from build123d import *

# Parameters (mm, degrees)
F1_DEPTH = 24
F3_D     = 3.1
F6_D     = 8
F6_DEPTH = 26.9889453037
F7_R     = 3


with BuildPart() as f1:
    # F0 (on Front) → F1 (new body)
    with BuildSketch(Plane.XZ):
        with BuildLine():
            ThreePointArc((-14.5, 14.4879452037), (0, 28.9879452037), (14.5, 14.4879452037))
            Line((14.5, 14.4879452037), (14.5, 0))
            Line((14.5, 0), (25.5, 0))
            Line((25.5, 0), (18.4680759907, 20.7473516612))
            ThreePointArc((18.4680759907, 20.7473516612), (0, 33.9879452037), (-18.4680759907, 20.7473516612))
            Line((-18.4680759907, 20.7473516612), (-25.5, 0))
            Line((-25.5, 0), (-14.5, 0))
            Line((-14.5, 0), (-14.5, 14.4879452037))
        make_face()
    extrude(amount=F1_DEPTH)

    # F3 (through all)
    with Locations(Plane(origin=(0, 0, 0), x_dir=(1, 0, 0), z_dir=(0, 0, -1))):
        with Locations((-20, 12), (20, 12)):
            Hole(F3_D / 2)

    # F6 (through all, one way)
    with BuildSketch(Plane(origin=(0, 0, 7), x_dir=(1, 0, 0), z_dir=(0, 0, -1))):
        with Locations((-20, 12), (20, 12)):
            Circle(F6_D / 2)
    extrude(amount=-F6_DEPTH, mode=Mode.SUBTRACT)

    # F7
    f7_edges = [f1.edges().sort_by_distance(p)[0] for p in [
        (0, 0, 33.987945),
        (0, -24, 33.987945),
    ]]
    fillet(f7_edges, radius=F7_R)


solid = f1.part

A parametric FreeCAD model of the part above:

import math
import FreeCAD as App
import Part
import Sketcher

V = App.Vector


def edges_at(feature, points):
    """Names of the edges that pass closest to the given points."""
    edges = feature.Shape.Edges
    near = lambda p: min(range(len(edges)), key=lambda i: edges[i].distToShape(Part.Vertex(*p))[0])
    return sorted({f"Edge{near(p) + 1}" for p in points})

doc = App.newDocument("Part")
body = doc.addObject("PartDesign::Body", "Body")

sketch1 = doc.addObject("Sketcher::SketchObject", "Sketch")
body.addObject(sketch1)
sketch1.AttachmentSupport = (doc.XZ_Plane, [""])
sketch1.MapMode = "FlatFace"
sketch1.addGeometry([
    Part.ArcOfCircle(Part.Circle(V(0, 14, 0), V(0, 0, 1), 14), math.radians(0), math.radians(180)),
    Part.LineSegment(V(14, 14, 0), V(14, 0, 0)),
    Part.LineSegment(V(14, 0, 0), V(26, 0, 0)),
    Part.LineSegment(V(26, 0, 0), V(18, 21, 0)),
    Part.ArcOfCircle(Part.Circle(V(0, 14, 0), V(0, 0, 1), 20), math.radians(19), math.radians(161)),
    Part.LineSegment(V(-18, 21, 0), V(-26, 0, 0)),
    Part.LineSegment(V(-26, 0, 0), V(-14, 0, 0)),
    Part.LineSegment(V(-14, 0, 0), V(-14, 14, 0)),
], False)
sketch1.addConstraint([
    Sketcher.Constraint("Tangent", 0, 1, 1, 1),
    Sketcher.Constraint("Coincident", 1, 2, 2, 1),
    Sketcher.Constraint("Coincident", 2, 2, 3, 1),
    Sketcher.Constraint("Tangent", 3, 2, 4, 1),
    Sketcher.Constraint("Tangent", 4, 2, 5, 1),
    Sketcher.Constraint("Coincident", 5, 2, 6, 1),
    Sketcher.Constraint("Coincident", 6, 2, 7, 1),
    Sketcher.Constraint("Tangent", 7, 2, 0, 2),
    Sketcher.Constraint("Vertical", 1),
    Sketcher.Constraint("Horizontal", 2),
    Sketcher.Constraint("Horizontal", 6),
    Sketcher.Constraint("Vertical", 7),
    Sketcher.Constraint("Coincident", 4, 3, 0, 3),
    Sketcher.Constraint("Symmetric", 2, 2, 5, 2, -1, 1),
    Sketcher.Constraint("Symmetric", 3, 2, 4, 2, -2),
    Sketcher.Constraint("Radius", 0, 14.5),
    Sketcher.Constraint("Radius", 4, 19.5),
    Sketcher.Constraint("DistanceX", 2, 1, 2, 2, 11.0),
    Sketcher.Constraint("DistanceY", 1, 2, 1, 1, 14.487945),
])
pad1 = doc.addObject("PartDesign::Pad", "Pad")
body.addObject(pad1)
pad1.Profile = sketch1
pad1.Length = 24

sketch2 = doc.addObject("Sketcher::SketchObject", "Sketch001")
body.addObject(sketch2)
sketch2.AttachmentSupport = (doc.XY_Plane, [""])
sketch2.MapMode = "FlatFace"
sketch2.addGeometry([
    Part.Circle(V(-20, -12, 0), V(0, 0, 1), 1.6),
    Part.Circle(V(20, -12, 0), V(0, 0, 1), 1.6),
], False)
sketch2.addConstraint([
    Sketcher.Constraint("Equal", 0, 1),
    Sketcher.Constraint("Symmetric", 0, 3, 1, 3, -2),
    Sketcher.Constraint("Diameter", 0, 3.1),
    Sketcher.Constraint("DistanceX", 0, 3, -1, 1, 20.0),
    Sketcher.Constraint("DistanceY", 0, 3, -1, 1, 12.0),
])
doc.recompute()
hole = doc.addObject("PartDesign::Hole", "Hole")
body.addObject(hole)
hole.Profile = sketch2
hole.ThreadType = "None"
hole.Diameter = 3.1
hole.DepthType = "ThroughAll"
hole.Reversed = True

sketch3 = doc.addObject("Sketcher::SketchObject", "Sketch002")
body.addObject(sketch3)
sketch3.AttachmentSupport = (doc.XY_Plane, [""])
sketch3.MapMode = "FlatFace"
sketch3.AttachmentOffset = App.Placement(V(0, 0, 7), App.Rotation())
sketch3.addGeometry([
    Part.Circle(V(20, -12, 0), V(0, 0, 1), 4),
    Part.Circle(V(-20, -12, 0), V(0, 0, 1), 4),
], False)
sketch3.addConstraint([
    Sketcher.Constraint("Equal", 0, 1),
    Sketcher.Constraint("Symmetric", 0, 3, 1, 3, -2),
    Sketcher.Constraint("Diameter", 0, 8.0),
    Sketcher.Constraint("DistanceX", -1, 1, 0, 3, 20.0),
    Sketcher.Constraint("DistanceY", 0, 3, -1, 1, 12.0),
])
pocket1 = doc.addObject("PartDesign::Pocket", "Pocket")
body.addObject(pocket1)
pocket1.Profile = sketch3
pocket1.Type = "ThroughAll"
pocket1.Reversed = True
doc.recompute()

fillet = doc.addObject("PartDesign::Fillet", "Fillet")
body.addObject(fillet)
fillet.Base = (pocket1, edges_at(pocket1, [(0, 0, 33.988), (0, -24, 33.988)]))
fillet.Radius = 3

doc.recompute()
